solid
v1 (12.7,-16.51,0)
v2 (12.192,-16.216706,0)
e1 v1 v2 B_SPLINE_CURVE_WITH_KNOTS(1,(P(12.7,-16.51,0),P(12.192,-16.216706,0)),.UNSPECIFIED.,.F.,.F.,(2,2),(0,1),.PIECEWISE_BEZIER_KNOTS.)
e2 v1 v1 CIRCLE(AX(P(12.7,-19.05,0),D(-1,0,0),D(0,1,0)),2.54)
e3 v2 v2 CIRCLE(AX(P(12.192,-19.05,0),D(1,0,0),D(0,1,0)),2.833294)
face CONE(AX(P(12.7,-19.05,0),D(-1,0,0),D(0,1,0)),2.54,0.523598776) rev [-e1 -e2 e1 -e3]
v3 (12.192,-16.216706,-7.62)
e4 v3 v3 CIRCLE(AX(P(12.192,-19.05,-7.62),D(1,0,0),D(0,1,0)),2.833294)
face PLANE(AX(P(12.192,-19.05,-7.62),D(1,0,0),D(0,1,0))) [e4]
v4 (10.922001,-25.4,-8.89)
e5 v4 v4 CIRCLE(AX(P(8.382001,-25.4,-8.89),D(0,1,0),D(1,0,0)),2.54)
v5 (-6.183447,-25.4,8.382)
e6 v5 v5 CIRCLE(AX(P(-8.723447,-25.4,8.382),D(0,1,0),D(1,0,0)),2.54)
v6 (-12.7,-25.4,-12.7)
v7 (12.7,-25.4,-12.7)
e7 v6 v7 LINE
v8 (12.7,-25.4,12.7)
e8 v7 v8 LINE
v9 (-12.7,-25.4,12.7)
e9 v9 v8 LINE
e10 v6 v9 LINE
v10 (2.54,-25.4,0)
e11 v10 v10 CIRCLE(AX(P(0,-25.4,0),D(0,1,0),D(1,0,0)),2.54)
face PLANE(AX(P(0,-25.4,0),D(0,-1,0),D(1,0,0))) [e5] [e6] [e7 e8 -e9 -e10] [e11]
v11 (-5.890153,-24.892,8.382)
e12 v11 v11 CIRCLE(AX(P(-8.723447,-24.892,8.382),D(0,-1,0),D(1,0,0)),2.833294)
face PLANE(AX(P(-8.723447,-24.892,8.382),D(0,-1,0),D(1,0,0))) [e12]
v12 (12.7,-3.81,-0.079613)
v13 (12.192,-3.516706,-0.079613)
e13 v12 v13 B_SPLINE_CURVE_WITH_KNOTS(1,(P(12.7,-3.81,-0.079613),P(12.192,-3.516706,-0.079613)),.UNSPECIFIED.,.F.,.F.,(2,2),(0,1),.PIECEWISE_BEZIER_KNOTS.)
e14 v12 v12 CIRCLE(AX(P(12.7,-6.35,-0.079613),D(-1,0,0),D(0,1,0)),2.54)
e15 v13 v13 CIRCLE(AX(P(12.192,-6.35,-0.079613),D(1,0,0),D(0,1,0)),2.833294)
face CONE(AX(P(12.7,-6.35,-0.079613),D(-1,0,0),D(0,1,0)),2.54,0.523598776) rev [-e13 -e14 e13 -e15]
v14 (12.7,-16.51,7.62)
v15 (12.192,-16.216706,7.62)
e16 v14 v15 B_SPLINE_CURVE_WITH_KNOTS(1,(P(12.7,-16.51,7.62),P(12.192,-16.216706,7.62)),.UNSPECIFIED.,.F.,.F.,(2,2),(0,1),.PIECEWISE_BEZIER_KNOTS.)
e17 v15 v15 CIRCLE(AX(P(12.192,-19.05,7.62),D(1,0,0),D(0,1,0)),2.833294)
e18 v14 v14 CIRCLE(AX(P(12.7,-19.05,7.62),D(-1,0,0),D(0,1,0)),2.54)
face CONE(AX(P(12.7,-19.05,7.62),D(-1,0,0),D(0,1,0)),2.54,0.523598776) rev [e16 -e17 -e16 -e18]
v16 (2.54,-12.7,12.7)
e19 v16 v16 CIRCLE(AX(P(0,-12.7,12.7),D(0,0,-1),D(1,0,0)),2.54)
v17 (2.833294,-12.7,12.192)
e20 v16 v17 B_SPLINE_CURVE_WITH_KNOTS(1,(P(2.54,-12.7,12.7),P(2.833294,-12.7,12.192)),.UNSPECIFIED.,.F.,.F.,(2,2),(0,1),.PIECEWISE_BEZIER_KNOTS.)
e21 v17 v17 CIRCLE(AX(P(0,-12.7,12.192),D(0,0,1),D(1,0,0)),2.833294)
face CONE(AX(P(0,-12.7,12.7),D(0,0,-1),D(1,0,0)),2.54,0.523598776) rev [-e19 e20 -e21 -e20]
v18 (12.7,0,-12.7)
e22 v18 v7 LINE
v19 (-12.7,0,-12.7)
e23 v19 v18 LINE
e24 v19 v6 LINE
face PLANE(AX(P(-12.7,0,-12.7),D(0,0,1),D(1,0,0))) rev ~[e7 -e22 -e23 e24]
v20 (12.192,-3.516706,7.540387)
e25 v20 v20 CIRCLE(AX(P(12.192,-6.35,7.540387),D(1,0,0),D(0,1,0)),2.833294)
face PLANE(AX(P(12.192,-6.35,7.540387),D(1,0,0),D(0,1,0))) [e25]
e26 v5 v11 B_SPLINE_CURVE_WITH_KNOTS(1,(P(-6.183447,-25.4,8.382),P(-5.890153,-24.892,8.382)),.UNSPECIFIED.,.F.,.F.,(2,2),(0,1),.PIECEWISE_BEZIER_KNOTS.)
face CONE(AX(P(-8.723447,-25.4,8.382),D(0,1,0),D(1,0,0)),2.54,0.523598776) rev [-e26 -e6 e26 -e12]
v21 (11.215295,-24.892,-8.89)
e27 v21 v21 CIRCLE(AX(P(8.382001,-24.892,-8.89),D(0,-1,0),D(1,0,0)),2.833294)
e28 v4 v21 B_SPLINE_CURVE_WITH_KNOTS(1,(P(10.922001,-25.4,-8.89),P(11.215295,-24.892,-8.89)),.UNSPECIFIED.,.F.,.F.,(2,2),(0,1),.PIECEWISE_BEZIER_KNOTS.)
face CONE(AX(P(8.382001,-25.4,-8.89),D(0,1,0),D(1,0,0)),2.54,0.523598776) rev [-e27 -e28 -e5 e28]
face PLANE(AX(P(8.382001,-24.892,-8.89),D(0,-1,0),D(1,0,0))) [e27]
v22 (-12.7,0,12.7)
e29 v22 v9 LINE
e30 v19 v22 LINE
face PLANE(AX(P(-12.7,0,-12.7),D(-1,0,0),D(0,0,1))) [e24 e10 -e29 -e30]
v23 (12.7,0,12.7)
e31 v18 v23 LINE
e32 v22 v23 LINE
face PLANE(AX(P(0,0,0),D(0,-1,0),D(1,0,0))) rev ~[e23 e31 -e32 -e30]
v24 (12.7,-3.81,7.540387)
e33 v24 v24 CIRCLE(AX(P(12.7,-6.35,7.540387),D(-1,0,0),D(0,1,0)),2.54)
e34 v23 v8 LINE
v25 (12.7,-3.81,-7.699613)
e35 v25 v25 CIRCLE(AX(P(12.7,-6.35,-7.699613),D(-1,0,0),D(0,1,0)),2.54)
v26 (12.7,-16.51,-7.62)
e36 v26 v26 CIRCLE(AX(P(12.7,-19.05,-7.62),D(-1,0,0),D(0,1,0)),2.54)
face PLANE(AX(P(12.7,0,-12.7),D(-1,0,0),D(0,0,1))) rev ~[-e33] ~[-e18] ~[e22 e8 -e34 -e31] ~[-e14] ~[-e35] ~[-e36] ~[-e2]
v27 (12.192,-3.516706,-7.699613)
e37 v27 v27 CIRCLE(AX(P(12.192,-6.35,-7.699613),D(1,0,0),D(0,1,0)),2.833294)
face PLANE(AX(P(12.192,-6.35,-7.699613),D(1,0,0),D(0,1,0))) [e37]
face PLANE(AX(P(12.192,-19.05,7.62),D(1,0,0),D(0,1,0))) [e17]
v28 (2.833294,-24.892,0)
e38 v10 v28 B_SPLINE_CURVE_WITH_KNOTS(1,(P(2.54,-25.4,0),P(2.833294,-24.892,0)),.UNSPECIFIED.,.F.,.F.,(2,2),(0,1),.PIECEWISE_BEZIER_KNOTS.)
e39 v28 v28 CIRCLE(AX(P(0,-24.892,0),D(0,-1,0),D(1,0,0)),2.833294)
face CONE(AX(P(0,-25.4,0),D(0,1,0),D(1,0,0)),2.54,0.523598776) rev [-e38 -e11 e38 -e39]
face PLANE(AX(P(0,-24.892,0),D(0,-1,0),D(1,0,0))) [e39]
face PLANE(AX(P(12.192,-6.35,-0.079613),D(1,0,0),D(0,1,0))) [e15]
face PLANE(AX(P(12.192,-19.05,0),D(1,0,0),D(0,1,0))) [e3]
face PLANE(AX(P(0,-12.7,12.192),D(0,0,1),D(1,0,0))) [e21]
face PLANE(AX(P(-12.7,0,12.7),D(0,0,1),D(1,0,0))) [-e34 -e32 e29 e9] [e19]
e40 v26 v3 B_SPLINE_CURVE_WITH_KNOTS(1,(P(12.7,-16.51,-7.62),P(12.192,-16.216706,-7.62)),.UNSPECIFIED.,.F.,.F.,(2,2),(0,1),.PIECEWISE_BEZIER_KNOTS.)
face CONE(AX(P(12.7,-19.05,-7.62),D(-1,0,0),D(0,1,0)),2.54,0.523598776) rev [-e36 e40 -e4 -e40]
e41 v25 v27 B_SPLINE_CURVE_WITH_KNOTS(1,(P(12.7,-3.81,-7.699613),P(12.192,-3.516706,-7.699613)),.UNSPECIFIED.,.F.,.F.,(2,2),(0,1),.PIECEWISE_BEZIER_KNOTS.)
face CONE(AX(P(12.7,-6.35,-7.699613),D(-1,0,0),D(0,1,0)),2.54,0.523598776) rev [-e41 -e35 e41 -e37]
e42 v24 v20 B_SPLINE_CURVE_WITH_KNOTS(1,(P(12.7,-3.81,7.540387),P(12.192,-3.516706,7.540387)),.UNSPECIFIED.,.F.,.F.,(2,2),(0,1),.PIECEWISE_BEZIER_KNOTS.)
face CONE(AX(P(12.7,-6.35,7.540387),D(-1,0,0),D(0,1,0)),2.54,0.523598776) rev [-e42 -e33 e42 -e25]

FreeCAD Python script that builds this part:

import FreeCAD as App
import Part
import Sketcher
Q = App.Units.Quantity

doc = App.newDocument("Part")
body = doc.addObject("PartDesign::Body", "Body")

# Sketch on XZ plane
sketch1 = body.newObject("Sketcher::SketchObject", "Sketch")
sketch1.AttachmentSupport = (doc.getObject("XZ_Plane"), [""])
sketch1.MapMode = "FlatFace"
sketch1.addGeometry(Part.LineSegment(App.Vector(-12.7, 12.7, 0), App.Vector(-12.7, -12.7, 0)), False)
sketch1.addGeometry(Part.LineSegment(App.Vector(-12.7, -12.7, 0), App.Vector(12.7, -12.7, 0)), False)
sketch1.addGeometry(Part.LineSegment(App.Vector(12.7, -12.7, 0), App.Vector(12.7, 12.7, 0)), False)
sketch1.addGeometry(Part.LineSegment(App.Vector(12.7, 12.7, 0), App.Vector(-12.7, 12.7, 0)), False)
sketch1.addConstraint(Sketcher.Constraint("Coincident", 0, 2, 1, 1))
sketch1.addConstraint(Sketcher.Constraint("Coincident", 1, 2, 2, 1))
sketch1.addConstraint(Sketcher.Constraint("Coincident", 2, 2, 3, 1))
sketch1.addConstraint(Sketcher.Constraint("Coincident", 3, 2, 0, 1))
sketch1.addConstraint(Sketcher.Constraint("Vertical", 0))
sketch1.addConstraint(Sketcher.Constraint("Horizontal", 1))
sketch1.addConstraint(Sketcher.Constraint("Vertical", 2))
sketch1.addConstraint(Sketcher.Constraint("Horizontal", 3))
sketch1.addConstraint(Sketcher.Constraint("Symmetric", 0, 2, 2, 2, -1, 1))
sketch1.addConstraint(Sketcher.Constraint("Equal", 3, 0))
sketch1.addConstraint(Sketcher.Constraint("DistanceX", 1, 1, 1, 2, Q("1 in")))
pad1 = body.newObject("PartDesign::Pad", "Pad")
pad1.Profile = sketch1
pad1.Length = Q("1 in")

# Sketch on XY plane
sketch2 = body.newObject("Sketcher::SketchObject", "Sketch001")
sketch2.AttachmentSupport = (doc.getObject("XY_Plane"), [""])
sketch2.MapMode = "FlatFace"
sketch2.AttachmentOffset = App.Placement(App.Vector(0, 0, 0.5 * 25.4), App.Rotation())
sketch2.addGeometry(Part.Circle(App.Vector(0, -12.7, 0), App.Vector(0, 0, 1), 2.54), False)
sketch2.addConstraint(Sketcher.Constraint("PointOnObject", 0, 3, -2))
sketch2.addConstraint(Sketcher.Constraint("Diameter", 0, Q("0.2 in")))
sketch2.addConstraint(Sketcher.Constraint("DistanceY", 0, 3, -1, 1, Q("0.5 in")))
pocket1 = body.newObject("PartDesign::Pocket", "Pocket")
pocket1.Profile = sketch2
pocket1.Length = Q("0.02 in")
pocket1.TaperAngle = 30

# Sketch on XZ plane
sketch3 = body.newObject("Sketcher::SketchObject", "Sketch002")
sketch3.AttachmentSupport = (doc.getObject("XZ_Plane"), [""])
sketch3.MapMode = "FlatFace"
sketch3.AttachmentOffset = App.Placement(App.Vector(0, 0, 1 * 25.4), App.Rotation())
sketch3.addGeometry(Part.Circle(App.Vector(-8.723447, 8.382, 0), App.Vector(0, 0, 1), 2.54), False)
sketch3.addGeometry(Part.Circle(App.Vector(0, 0, 0), App.Vector(0, 0, 1), 2.54), False)
sketch3.addGeometry(Part.Circle(App.Vector(8.382001, -8.89, 0), App.Vector(0, 0, 1), 2.54), False)
sketch3.addConstraint(Sketcher.Constraint("Coincident", 1, 3, -1, 1))
sketch3.addConstraint(Sketcher.Constraint("Equal", 0, 1))
sketch3.addConstraint(Sketcher.Constraint("Equal", 1, 2))
sketch3.addConstraint(Sketcher.Constraint("Diameter", 0, Q("0.2 in")))
sketch3.addConstraint(Sketcher.Constraint("DistanceY", -1, 1, 0, 3, Q("0.33 in")))
sketch3.addConstraint(Sketcher.Constraint("DistanceX", -1, 1, 2, 3, Q("0.33 in")))
sketch3.addConstraint(Sketcher.Constraint("DistanceY", 2, 3, -1, 1, Q("0.35 in")))
sketch3.addConstraint(Sketcher.Constraint("DistanceX", 0, 3, 2, 3, Q("17.105448 mm")))
pocket2 = body.newObject("PartDesign::Pocket", "Pocket001")
pocket2.Profile = sketch3
pocket2.Length = Q("0.02 in")
pocket2.TaperAngle = 30

# Sketch on YZ plane
sketch4 = body.newObject("Sketcher::SketchObject", "Sketch003")
sketch4.AttachmentSupport = (doc.getObject("YZ_Plane"), [""])
sketch4.MapMode = "FlatFace"
sketch4.AttachmentOffset = App.Placement(App.Vector(0, 0, 0.5 * 25.4), App.Rotation())
sketch4.addGeometry(Part.Circle(App.Vector(-6.35, 7.540387, 0), App.Vector(0, 0, 1), 2.54), False)
sketch4.addGeometry(Part.Circle(App.Vector(-6.35, -0.079613, 0), App.Vector(0, 0, 1), 2.54), False)
sketch4.addGeometry(Part.Circle(App.Vector(-6.35, -7.699613, 0), App.Vector(0, 0, 1), 2.54), False)
sketch4.addGeometry(Part.Circle(App.Vector(-19.05, 0, 0), App.Vector(0, 0, 1), 2.54), False)
sketch4.addGeometry(Part.Circle(App.Vector(-19.05, 7.62, 0), App.Vector(0, 0, 1), 2.54), False)
sketch4.addGeometry(Part.Circle(App.Vector(-19.05, -7.62, 0), App.Vector(0, 0, 1), 2.54), False)
sketch4.addConstraint(Sketcher.Constraint("Equal", 0, 1))
sketch4.addConstraint(Sketcher.Constraint("Equal", 1, 2))
sketch4.addConstraint(Sketcher.Constraint("Equal", 2, 3))
sketch4.addConstraint(Sketcher.Constraint("Equal", 3, 4))
sketch4.addConstraint(Sketcher.Constraint("Equal", 4, 5))
sketch4.addConstraint(Sketcher.Constraint("Symmetric", 4, 3, 5, 3, -1))
sketch4.addConstraint(Sketcher.Constraint("PointOnObject", 3, 3, -1))
sketch4.addConstraint(Sketcher.Constraint("Vertical", 0, 3, 1, 3))
sketch4.addConstraint(Sketcher.Constraint("Vertical", 1, 3, 2, 3))
sketch4.addConstraint(Sketcher.Constraint("Vertical", 3, 3, 4, 3))
sketch4.addConstraint(Sketcher.Constraint("Diameter", 0, Q("0.2 in")))
sketch4.addConstraint(Sketcher.Constraint("DistanceY", -1, 1, 4, 3, Q("0.3 in")))
sketch4.addConstraint(Sketcher.Constraint("DistanceY", 1, 3, 0, 3, Q("0.3 in")))
sketch4.addConstraint(Sketcher.Constraint("DistanceY", 2, 3, 1, 3, Q("0.3 in")))
sketch4.addConstraint(Sketcher.Constraint("DistanceX", 3, 3, 1, 3, Q("0.5 in")))
sketch4.addConstraint(Sketcher.Constraint("DistanceX", 0, 3, -1, 1, Q("0.25 in")))
sketch4.addConstraint(Sketcher.Constraint("DistanceY", -1, 1, 0, 3, Q("7.540387 mm")))
pocket3 = body.newObject("PartDesign::Pocket", "Pocket002")
pocket3.Profile = sketch4
pocket3.Length = Q("0.02 in")
pocket3.TaperAngle = 30

doc.recompute()
